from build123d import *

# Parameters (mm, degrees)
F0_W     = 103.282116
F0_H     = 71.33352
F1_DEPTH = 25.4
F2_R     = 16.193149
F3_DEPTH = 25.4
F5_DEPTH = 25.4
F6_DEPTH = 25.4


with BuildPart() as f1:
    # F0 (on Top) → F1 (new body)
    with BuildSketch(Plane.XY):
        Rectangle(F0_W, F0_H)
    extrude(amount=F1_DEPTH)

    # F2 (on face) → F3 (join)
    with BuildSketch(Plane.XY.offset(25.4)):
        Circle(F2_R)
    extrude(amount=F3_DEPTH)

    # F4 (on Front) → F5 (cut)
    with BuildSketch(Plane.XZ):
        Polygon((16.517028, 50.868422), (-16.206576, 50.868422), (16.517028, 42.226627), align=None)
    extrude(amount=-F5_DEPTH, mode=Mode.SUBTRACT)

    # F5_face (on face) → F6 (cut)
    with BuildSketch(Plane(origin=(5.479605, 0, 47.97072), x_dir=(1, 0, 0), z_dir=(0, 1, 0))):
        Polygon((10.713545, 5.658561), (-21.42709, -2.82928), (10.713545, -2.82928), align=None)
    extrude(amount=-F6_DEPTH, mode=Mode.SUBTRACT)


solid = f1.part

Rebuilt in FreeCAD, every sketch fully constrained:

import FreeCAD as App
import Part
import Sketcher

V = App.Vector
Q = App.Units.Quantity

doc = App.newDocument("Part")
body = doc.addObject("PartDesign::Body", "Body")

sketch1 = body.newObject("Sketcher::SketchObject", "Sketch")
sketch1.AttachmentSupport = (doc.getObject("XY_Plane"), [""])
sketch1.MapMode = "FlatFace"
sketch1.addGeometry([
    Part.LineSegment(V(-51.641058, 35.66676, 0), V(-51.641058, -35.66676, 0)),
    Part.LineSegment(V(-51.641058, -35.66676, 0), V(51.641058, -35.66676, 0)),
    Part.LineSegment(V(51.641058, -35.66676, 0), V(51.641058, 35.66676, 0)),
    Part.LineSegment(V(51.641058, 35.66676, 0), V(-51.641058, 35.66676, 0)),
], False)
sketch1.addConstraint([
    Sketcher.Constraint("Coincident", 0, 2, 1, 1),
    Sketcher.Constraint("Coincident", 1, 2, 2, 1),
    Sketcher.Constraint("Coincident", 2, 2, 3, 1),
    Sketcher.Constraint("Coincident", 3, 2, 0, 1),
    Sketcher.Constraint("Vertical", 0),
    Sketcher.Constraint("Horizontal", 1),
    Sketcher.Constraint("Vertical", 2),
    Sketcher.Constraint("Horizontal", 3),
    Sketcher.Constraint("Symmetric", 0, 2, 2, 2, -1, 1),
    Sketcher.Constraint("DistanceY", 0, 2, 0, 1, 71.33352),
    Sketcher.Constraint("DistanceX", 1, 1, 1, 2, 103.282116),
])
pad1 = body.newObject("PartDesign::Pad", "Pad")
pad1.Profile = sketch1
pad1.Length = Q("1 in")

sketch2 = body.newObject("Sketcher::SketchObject", "Sketch001")
sketch2.AttachmentSupport = (doc.getObject("XY_Plane"), [""])
sketch2.MapMode = "FlatFace"
sketch2.AttachmentOffset = App.Placement(V(0, 0, 1 * 25.4), App.Rotation())
sketch2.addGeometry(Part.Circle(V(0, 0, 0), V(0, 0, 1), 16.193149), False)
sketch2.addConstraint([
    Sketcher.Constraint("Coincident", 0, 3, -1, 1),
    Sketcher.Constraint("Diameter", 0, 32.386298),
])
pad2 = body.newObject("PartDesign::Pad", "Pad001")
pad2.Profile = sketch2
pad2.Length = Q("1 in")

sketch3 = body.newObject("Sketcher::SketchObject", "Sketch002")
sketch3.AttachmentSupport = (doc.getObject("XZ_Plane"), [""])
sketch3.MapMode = "FlatFace"
sketch3.addGeometry([
    Part.LineSegment(V(16.517028, 50.868422, 0), V(-16.206576, 50.868422, 0)),
    Part.LineSegment(V(-16.206576, 50.868422, 0), V(16.517028, 42.226627, 0)),
    Part.LineSegment(V(16.517028, 42.226627, 0), V(16.517028, 50.868422, 0)),
], False)
sketch3.addConstraint([
    Sketcher.Constraint("Coincident", 0, 2, 1, 1),
    Sketcher.Constraint("Coincident", 1, 2, 2, 1),
    Sketcher.Constraint("Coincident", 2, 2, 0, 1),
    Sketcher.Constraint("Horizontal", 0),
    Sketcher.Constraint("Vertical", 2),
    Sketcher.Constraint("DistanceX", 0, 2, 0, 1, 32.723604),
    Sketcher.Constraint("DistanceY", 2, 1, 2, 2, 8.641795),
    Sketcher.Constraint("DistanceX", -1, 1, 1, 2, 16.517028),
    Sketcher.Constraint("DistanceY", -1, 1, 0, 2, 50.868422),
])
pocket1 = body.newObject("PartDesign::Pocket", "Pocket")
pocket1.Profile = sketch3
pocket1.Length = Q("1 in")

sketch4 = body.newObject("Sketcher::SketchObject", "Sketch003")
sketch4.AttachmentSupport = (doc.getObject("XZ_Plane"), [""])
sketch4.MapMode = "FlatFace"
sketch4.addGeometry([
    Part.LineSegment(V(16.19315, 42.312159, 0), V(-15.947485, 50.8, 0)),
    Part.LineSegment(V(-15.947485, 50.8, 0), V(16.19315, 50.8, 0)),
    Part.LineSegment(V(16.19315, 50.8, 0), V(16.19315, 42.312159, 0)),
], False)
sketch4.addConstraint([
    Sketcher.Constraint("Coincident", 0, 2, 1, 1),
    Sketcher.Constraint("Coincident", 1, 2, 2, 1),
    Sketcher.Constraint("Coincident", 2, 2, 0, 1),
    Sketcher.Constraint("Horizontal", 1),
    Sketcher.Constraint("Vertical", 2),
    Sketcher.Constraint("DistanceY", -1, 1, 0, 2, Q("2 in")),
    Sketcher.Constraint("Distance", 0, 33.242501),
    Sketcher.Constraint("DistanceY", 2, 2, 2, 1, 8.487841),
    Sketcher.Constraint("DistanceX", -1, 1, 1, 2, 16.19315),
])
pocket2 = body.newObject("PartDesign::Pocket", "Pocket001")
pocket2.Profile = sketch4
pocket2.Length = Q("1 in")
pocket2.Reversed = True

doc.recompute()
